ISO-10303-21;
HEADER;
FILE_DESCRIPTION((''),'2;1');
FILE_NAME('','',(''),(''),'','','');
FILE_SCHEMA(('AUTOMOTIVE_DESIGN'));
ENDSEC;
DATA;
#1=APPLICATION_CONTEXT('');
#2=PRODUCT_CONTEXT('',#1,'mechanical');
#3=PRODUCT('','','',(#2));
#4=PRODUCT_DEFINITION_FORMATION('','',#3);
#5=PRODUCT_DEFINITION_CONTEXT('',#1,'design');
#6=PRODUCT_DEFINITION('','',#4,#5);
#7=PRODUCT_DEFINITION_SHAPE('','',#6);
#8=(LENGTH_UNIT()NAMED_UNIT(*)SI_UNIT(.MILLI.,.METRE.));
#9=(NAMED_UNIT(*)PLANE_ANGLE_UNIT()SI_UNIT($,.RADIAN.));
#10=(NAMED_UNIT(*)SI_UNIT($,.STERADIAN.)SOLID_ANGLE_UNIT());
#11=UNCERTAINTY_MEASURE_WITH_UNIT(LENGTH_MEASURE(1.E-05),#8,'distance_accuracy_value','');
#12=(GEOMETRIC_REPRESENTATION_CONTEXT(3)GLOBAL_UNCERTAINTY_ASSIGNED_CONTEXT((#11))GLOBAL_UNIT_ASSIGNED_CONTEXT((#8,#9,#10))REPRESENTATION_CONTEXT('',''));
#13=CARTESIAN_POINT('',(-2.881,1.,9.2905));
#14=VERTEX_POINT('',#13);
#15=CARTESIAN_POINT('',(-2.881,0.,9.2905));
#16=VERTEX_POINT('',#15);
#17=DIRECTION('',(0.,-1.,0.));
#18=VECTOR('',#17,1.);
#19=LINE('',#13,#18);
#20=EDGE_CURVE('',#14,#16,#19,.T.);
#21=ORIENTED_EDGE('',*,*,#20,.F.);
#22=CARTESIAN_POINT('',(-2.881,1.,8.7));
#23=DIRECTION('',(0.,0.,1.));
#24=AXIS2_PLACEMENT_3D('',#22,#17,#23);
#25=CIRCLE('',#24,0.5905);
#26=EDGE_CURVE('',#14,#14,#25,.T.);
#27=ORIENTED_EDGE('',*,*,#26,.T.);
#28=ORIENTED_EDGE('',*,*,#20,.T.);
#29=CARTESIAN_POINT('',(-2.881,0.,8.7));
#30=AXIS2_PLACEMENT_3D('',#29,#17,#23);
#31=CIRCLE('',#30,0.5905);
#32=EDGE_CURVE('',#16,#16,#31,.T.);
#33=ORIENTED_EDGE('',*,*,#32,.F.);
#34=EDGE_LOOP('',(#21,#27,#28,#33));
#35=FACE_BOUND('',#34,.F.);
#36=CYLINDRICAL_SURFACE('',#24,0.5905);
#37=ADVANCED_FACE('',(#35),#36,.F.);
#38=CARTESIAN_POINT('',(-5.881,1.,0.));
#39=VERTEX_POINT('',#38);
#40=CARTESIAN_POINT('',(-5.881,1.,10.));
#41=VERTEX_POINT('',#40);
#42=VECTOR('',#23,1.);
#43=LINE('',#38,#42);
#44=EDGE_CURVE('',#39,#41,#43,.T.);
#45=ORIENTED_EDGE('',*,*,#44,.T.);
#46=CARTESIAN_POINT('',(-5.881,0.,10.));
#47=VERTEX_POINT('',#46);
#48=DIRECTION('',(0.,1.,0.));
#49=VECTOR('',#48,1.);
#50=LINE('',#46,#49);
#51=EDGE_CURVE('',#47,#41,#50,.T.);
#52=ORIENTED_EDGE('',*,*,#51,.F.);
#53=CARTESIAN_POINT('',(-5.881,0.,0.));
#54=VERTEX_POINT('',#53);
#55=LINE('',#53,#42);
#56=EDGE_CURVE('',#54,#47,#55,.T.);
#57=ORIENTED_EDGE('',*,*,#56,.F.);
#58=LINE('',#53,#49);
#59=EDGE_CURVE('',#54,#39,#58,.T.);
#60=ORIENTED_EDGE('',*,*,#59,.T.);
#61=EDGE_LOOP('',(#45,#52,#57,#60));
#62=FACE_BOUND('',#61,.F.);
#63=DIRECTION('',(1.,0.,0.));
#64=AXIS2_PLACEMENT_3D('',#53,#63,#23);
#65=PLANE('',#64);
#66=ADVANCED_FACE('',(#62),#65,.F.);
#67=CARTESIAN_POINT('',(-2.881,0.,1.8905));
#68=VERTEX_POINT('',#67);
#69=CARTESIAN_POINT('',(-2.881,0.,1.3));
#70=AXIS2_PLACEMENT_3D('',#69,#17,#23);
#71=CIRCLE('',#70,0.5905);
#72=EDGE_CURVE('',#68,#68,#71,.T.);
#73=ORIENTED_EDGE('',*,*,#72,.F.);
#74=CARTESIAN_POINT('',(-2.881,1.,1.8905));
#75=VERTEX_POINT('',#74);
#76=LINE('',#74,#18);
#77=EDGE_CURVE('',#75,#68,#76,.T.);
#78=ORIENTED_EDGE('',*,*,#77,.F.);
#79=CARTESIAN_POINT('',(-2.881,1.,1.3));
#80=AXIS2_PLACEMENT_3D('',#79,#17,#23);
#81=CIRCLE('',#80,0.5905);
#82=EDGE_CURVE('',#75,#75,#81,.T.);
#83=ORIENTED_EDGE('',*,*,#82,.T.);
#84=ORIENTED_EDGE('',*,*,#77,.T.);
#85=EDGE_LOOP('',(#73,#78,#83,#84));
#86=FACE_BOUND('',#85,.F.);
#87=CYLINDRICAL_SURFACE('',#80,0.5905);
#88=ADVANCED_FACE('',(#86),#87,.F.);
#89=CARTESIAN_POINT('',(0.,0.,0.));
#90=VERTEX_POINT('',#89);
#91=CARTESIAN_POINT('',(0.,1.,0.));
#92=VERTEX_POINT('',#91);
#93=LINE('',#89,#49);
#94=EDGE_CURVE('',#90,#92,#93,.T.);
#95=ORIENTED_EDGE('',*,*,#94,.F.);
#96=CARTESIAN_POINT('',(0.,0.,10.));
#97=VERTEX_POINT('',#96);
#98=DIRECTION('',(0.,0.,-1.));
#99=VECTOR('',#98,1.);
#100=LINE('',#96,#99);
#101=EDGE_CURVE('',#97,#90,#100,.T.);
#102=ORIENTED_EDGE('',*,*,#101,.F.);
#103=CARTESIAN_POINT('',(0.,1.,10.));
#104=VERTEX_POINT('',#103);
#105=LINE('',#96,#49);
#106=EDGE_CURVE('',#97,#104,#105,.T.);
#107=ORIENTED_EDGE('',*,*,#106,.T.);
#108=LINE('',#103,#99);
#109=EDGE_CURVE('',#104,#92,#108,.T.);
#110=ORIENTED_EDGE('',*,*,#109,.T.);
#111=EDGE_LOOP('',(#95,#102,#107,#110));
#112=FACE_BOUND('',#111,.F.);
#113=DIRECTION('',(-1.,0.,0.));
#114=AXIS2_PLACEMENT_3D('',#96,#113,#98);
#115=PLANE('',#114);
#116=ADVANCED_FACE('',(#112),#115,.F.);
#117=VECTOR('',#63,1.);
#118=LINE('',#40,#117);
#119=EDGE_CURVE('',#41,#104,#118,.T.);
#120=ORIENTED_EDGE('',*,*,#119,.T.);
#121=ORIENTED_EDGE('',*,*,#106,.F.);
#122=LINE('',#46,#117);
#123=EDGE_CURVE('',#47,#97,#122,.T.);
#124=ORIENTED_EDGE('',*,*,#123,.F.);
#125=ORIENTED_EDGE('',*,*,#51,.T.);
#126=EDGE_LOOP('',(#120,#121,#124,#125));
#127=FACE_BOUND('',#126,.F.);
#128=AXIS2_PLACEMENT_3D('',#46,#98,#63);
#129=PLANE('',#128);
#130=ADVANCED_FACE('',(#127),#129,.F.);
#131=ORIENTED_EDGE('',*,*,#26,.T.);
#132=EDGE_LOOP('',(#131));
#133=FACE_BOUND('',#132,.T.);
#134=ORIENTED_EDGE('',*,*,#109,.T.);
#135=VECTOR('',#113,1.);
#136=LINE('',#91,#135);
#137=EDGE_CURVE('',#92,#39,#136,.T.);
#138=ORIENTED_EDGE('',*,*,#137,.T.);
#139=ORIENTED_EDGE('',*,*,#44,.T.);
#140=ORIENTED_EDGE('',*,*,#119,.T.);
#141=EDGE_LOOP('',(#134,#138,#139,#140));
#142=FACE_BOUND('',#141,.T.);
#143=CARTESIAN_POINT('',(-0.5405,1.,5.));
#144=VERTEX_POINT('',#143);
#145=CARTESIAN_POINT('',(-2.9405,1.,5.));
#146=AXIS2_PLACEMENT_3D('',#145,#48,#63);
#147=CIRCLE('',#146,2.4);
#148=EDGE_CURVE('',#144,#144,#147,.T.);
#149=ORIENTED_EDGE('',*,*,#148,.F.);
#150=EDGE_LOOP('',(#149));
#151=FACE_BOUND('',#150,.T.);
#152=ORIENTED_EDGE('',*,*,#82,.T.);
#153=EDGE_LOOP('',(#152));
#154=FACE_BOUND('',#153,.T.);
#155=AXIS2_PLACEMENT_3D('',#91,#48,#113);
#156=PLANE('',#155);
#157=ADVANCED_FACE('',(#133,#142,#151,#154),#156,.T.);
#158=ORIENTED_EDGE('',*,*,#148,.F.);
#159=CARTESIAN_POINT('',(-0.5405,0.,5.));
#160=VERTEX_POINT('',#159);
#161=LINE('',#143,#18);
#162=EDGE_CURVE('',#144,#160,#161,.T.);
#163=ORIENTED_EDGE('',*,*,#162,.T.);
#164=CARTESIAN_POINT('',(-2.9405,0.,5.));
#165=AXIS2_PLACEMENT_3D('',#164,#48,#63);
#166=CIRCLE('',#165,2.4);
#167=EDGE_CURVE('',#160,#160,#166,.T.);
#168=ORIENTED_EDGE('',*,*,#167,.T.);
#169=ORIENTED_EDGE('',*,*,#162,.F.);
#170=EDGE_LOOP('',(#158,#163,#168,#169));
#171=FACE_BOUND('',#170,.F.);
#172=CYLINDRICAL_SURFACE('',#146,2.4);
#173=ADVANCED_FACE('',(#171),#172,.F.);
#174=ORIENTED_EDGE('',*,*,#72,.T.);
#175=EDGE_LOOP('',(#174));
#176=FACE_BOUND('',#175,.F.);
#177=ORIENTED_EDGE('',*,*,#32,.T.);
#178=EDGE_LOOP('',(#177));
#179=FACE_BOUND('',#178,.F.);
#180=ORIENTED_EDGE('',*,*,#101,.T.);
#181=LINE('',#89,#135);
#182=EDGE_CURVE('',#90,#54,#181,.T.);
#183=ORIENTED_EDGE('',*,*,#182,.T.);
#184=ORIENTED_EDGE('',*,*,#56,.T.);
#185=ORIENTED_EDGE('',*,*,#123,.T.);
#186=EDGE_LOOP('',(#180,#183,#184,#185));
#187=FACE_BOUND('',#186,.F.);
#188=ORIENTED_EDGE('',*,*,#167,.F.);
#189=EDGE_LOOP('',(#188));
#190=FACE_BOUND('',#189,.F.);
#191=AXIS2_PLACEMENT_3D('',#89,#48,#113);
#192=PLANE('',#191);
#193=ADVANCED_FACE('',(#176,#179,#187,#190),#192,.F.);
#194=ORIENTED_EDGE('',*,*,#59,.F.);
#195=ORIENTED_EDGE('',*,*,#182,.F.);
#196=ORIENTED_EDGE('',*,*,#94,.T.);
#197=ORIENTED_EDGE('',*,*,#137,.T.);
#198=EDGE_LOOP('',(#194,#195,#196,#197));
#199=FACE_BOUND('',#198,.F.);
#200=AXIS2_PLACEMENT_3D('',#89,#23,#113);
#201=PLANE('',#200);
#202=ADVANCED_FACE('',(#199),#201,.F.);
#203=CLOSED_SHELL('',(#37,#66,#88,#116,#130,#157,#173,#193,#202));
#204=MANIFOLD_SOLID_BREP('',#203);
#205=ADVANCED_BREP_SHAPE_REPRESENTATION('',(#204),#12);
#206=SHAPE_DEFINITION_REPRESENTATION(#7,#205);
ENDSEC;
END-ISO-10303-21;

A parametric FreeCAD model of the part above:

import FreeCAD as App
import Part
import Sketcher
from FreeCAD import Vector
Q = App.Units.Quantity


def add_polygon(sketch, points):
    """Adds a closed chain of lines whose ends are joined by coincident constraints."""
    first, n = sketch.GeometryCount, len(points)
    for a, b in zip(points, points[1:] + points[:1]):
        sketch.addGeometry(Part.LineSegment(App.Vector(*a, 0), App.Vector(*b, 0)), False)
    for i in range(n):
        sketch.addConstraint(Sketcher.Constraint("Coincident", first + i, 2, first + (i + 1) % n, 1))

doc = App.newDocument("Part")
params = doc.addObject("Spreadsheet::Sheet", "Params")
for row, (alias, value) in enumerate([
    ("sketch1_height", "10 mm"),
    ("pad1_length", "1 mm"),
    ("sketch2_diameter", "4.8 mm"),
    ("pocket1_length", "1 mm"),
    ("hole_diameter", "1.181 mm"),
    ("hole2_diameter", "1.181 mm"),
], start=1):
    params.set(f"A{row}", alias)
    params.set(f"B{row}", "=" + value)
    params.setAlias(f"B{row}", alias)

body = doc.addObject("PartDesign::Body", "Body")

sketch1 = doc.addObject("Sketcher::SketchObject", "Sketch")
body.addObject(sketch1)
sketch1.AttachmentSupport = (doc.XZ_Plane, [""])
sketch1.MapMode = "FlatFace"
add_polygon(sketch1, [(0, 10), (0, 0), (-6, 0), (-6, 10)])
sketch1.addConstraint([
    Sketcher.Constraint("Vertical", 0),
    Sketcher.Constraint("Horizontal", 1),
    Sketcher.Constraint("Vertical", 2),
    Sketcher.Constraint("Horizontal", 3),
    Sketcher.Constraint("Coincident", 0, 2, -1, 1),
    Sketcher.Constraint("DistanceY", 0, 2, 0, 1, Q("10 mm")),
    Sketcher.Constraint("DistanceX", 1, 2, 1, 1, Q("5.881 mm")),
])
sketch1.setExpression("Constraints[9]", "Params.sketch1_height")
pad1 = doc.addObject("PartDesign::Pad", "Pad")
body.addObject(pad1)
pad1.Profile = sketch1
pad1.setExpression("Length", "Params.pad1_length")
pad1.Reversed = True

sketch2 = doc.addObject("Sketcher::SketchObject", "Sketch001")
body.addObject(sketch2)
sketch2.AttachmentSupport = (doc.XZ_Plane, [""])
sketch2.MapMode = "FlatFace"
sketch2.AttachmentOffset = App.Placement(Vector(0, 0, -1), App.Rotation())
sketch2.addGeometry(Part.Circle(Vector(-2.9, 5, 0), Vector(0, 0, 1), 2.4), False)
sketch2.addConstraint([
    Sketcher.Constraint("Diameter", 0, Q("4.8 mm")),
    Sketcher.Constraint("DistanceY", -1, 1, 0, 3, Q("5 mm")),
    Sketcher.Constraint("DistanceX", 0, 3, -1, 1, Q("2.9405 mm")),
])
sketch2.setExpression("Constraints[0]", "Params.sketch2_diameter")
pocket1 = doc.addObject("PartDesign::Pocket", "Pocket")
body.addObject(pocket1)
pocket1.Profile = sketch2
pocket1.setExpression("Length", "Params.pocket1_length")
pocket1.Reversed = True

sketch3 = doc.addObject("Sketcher::SketchObject", "Sketch002")
body.addObject(sketch3)
sketch3.AttachmentSupport = (doc.XZ_Plane, [""])
sketch3.MapMode = "FlatFace"
sketch3.AttachmentOffset = App.Placement(Vector(0, 0, -1), App.Rotation())
sketch3.addGeometry(Part.Circle(Vector(-2.9, 1.3, 0), Vector(0, 0, 1), 0.6), False)
sketch3.addConstraint([
    Sketcher.Constraint("Diameter", 0, Q("1.181 mm")),
    Sketcher.Constraint("DistanceY", -1, 1, 0, 3, Q("1.3 mm")),
    Sketcher.Constraint("DistanceX", 0, 3, -1, 1, Q("2.881 mm")),
])
doc.recompute()
hole = doc.addObject("PartDesign::Hole", "Hole")
body.addObject(hole)
hole.Profile = sketch3
hole.ThreadType = "None"
hole.setExpression("Diameter", "Params.hole_diameter")
hole.DepthType = "ThroughAll"
hole.Reversed = True

sketch4 = doc.addObject("Sketcher::SketchObject", "Sketch003")
body.addObject(sketch4)
sketch4.AttachmentSupport = (doc.XZ_Plane, [""])
sketch4.MapMode = "FlatFace"
sketch4.AttachmentOffset = App.Placement(Vector(0, 0, -1), App.Rotation())
sketch4.addGeometry(Part.Circle(Vector(-2.9, 8.7, 0), Vector(0, 0, 1), 0.6), False)
sketch4.addConstraint([
    Sketcher.Constraint("Diameter", 0, Q("1.181 mm")),
    Sketcher.Constraint("DistanceY", -1, 1, 0, 3, Q("8.7 mm")),
    Sketcher.Constraint("DistanceX", 0, 3, -1, 1, Q("2.881 mm")),
])
doc.recompute()
hole2 = doc.addObject("PartDesign::Hole", "Hole001")
body.addObject(hole2)
hole2.Profile = sketch4
hole2.ThreadType = "None"
hole2.setExpression("Diameter", "Params.hole2_diameter")
hole2.DepthType = "ThroughAll"
hole2.Reversed = True

doc.recompute()
